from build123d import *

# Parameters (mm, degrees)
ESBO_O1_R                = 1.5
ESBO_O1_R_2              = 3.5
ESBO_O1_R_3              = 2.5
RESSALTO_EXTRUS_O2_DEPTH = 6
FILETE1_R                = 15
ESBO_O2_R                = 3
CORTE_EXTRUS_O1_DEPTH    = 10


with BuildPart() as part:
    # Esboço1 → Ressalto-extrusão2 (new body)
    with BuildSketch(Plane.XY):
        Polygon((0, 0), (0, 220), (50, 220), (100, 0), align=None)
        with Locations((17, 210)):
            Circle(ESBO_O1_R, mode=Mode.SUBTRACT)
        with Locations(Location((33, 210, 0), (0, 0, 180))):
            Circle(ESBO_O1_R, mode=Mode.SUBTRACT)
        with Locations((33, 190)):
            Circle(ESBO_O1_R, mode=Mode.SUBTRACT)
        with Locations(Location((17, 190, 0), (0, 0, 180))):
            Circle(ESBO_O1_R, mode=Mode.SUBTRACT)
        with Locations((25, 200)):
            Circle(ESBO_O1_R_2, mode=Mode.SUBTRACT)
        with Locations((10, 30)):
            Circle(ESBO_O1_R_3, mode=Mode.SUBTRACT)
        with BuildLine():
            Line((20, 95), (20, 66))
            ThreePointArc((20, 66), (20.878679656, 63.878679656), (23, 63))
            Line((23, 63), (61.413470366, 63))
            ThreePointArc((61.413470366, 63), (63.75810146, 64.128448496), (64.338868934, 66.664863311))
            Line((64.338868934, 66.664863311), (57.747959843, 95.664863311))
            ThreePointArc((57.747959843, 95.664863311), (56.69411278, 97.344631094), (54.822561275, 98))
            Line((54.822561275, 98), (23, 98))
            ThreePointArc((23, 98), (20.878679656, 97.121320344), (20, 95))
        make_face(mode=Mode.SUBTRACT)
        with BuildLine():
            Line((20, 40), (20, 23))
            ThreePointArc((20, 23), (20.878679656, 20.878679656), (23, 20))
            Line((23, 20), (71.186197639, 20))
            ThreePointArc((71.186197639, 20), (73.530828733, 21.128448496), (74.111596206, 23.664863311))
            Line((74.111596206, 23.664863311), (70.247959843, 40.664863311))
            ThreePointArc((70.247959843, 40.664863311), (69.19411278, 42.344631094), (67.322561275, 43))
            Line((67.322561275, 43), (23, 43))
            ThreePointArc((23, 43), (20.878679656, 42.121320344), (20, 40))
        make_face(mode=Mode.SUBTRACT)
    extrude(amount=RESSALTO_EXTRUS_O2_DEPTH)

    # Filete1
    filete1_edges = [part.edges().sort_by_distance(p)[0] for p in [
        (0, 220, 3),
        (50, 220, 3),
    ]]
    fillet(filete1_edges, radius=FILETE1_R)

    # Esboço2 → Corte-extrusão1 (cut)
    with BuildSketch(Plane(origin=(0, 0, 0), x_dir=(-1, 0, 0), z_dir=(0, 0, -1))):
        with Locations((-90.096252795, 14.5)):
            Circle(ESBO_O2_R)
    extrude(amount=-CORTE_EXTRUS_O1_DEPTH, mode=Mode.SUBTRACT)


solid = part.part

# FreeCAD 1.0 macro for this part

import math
import FreeCAD as App
import Part
import Sketcher

V = App.Vector


def edges_at(feature, points):
    """Names of the edges that pass closest to the given points."""
    edges = feature.Shape.Edges
    near = lambda p: min(range(len(edges)), key=lambda i: edges[i].distToShape(Part.Vertex(*p))[0])
    return sorted({f"Edge{near(p) + 1}" for p in points})


def add_polygon(sketch, points):
    """Adds a closed chain of lines whose ends are joined by coincident constraints."""
    first, n = sketch.GeometryCount, len(points)
    for a, b in zip(points, points[1:] + points[:1]):
        sketch.addGeometry(Part.LineSegment(App.Vector(*a, 0), App.Vector(*b, 0)), False)
    for i in range(n):
        sketch.addConstraint(Sketcher.Constraint("Coincident", first + i, 2, first + (i + 1) % n, 1))

doc = App.newDocument("Part")
body = doc.addObject("PartDesign::Body", "Body")

# Sketch on XY plane
sketch1 = body.newObject("Sketcher::SketchObject", "Sketch")
sketch1.AttachmentSupport = (doc.getObject("XY_Plane"), [""])
sketch1.MapMode = "FlatFace"
add_polygon(sketch1, [(0, 220), (0, 0), (100, 0), (50, 220)])  # lines 0-3
sketch1.addGeometry(Part.ArcOfCircle(Part.Circle(V(23, 40, 0), V(0, 0, 1), 3), math.radians(90), math.radians(180)), False)  # 4
sketch1.addGeometry(Part.LineSegment(V(23, 43, 0), V(67.3, 43, 0)), False)  # 5
sketch1.addGeometry(Part.ArcOfCircle(Part.Circle(V(67.3, 40, 0), V(0, 0, 1), 3), math.radians(13), math.radians(90)), False)  # 6
sketch1.addGeometry(Part.LineSegment(V(70.2, 40.7, 0), V(74.1, 23.7, 0)), False)  # 7
sketch1.addGeometry(Part.ArcOfCircle(Part.Circle(V(71.2, 23, 0), V(0, 0, 1), 3), math.radians(-90), math.radians(13)), False)  # 8
sketch1.addGeometry(Part.LineSegment(V(71.2, 20, 0), V(23, 20, 0)), False)  # 9
sketch1.addGeometry(Part.ArcOfCircle(Part.Circle(V(23, 23, 0), V(0, 0, 1), 3), math.radians(180), math.radians(270)), False)  # 10
sketch1.addGeometry(Part.LineSegment(V(20, 23, 0), V(20, 40, 0)), False)  # 11
sketch1.addGeometry(Part.ArcOfCircle(Part.Circle(V(23, 95, 0), V(0, 0, 1), 3), math.radians(90), math.radians(180)), False)  # 12
sketch1.addGeometry(Part.LineSegment(V(23, 98, 0), V(54.8, 98, 0)), False)  # 13
sketch1.addGeometry(Part.ArcOfCircle(Part.Circle(V(54.8, 95, 0), V(0, 0, 1), 3), math.radians(13), math.radians(90)), False)  # 14
sketch1.addGeometry(Part.LineSegment(V(57.7, 95.7, 0), V(64.3, 66.7, 0)), False)  # 15
sketch1.addGeometry(Part.ArcOfCircle(Part.Circle(V(61.4, 66, 0), V(0, 0, 1), 3), math.radians(-90), math.radians(13)), False)  # 16
sketch1.addGeometry(Part.LineSegment(V(61.4, 63, 0), V(23, 63, 0)), False)  # 17
sketch1.addGeometry(Part.ArcOfCircle(Part.Circle(V(23, 66, 0), V(0, 0, 1), 3), math.radians(180), math.radians(270)), False)  # 18
sketch1.addGeometry(Part.LineSegment(V(20, 66, 0), V(20, 95, 0)), False)  # 19
sketch1.addGeometry(Part.Circle(V(10, 30, 0), V(0, 0, 1), 2.5), False)  # 20
sketch1.addGeometry(Part.Circle(V(33, 190, 0), V(0, 0, 1), 1.5), False)  # 21
sketch1.addGeometry(Part.Circle(V(33, 210, 0), V(0, 0, 1), 1.5), False)  # 22
sketch1.addGeometry(Part.Circle(V(25, 200, 0), V(0, 0, 1), 3.5), False)  # 23
sketch1.addGeometry(Part.Circle(V(17, 190, 0), V(0, 0, 1), 1.5), False)  # 24
sketch1.addGeometry(Part.Circle(V(17, 210, 0), V(0, 0, 1), 1.5), False)  # 25
sketch1.addConstraint(Sketcher.Constraint("Tangent", 4, 1, 5, 1))
sketch1.addConstraint(Sketcher.Constraint("Tangent", 5, 2, 6, 2))
sketch1.addConstraint(Sketcher.Constraint("Tangent", 6, 1, 7, 1))
sketch1.addConstraint(Sketcher.Constraint("Tangent", 7, 2, 8, 2))
sketch1.addConstraint(Sketcher.Constraint("Tangent", 8, 1, 9, 1))
sketch1.addConstraint(Sketcher.Constraint("Tangent", 9, 2, 10, 2))
sketch1.addConstraint(Sketcher.Constraint("Tangent", 10, 1, 11, 1))
sketch1.addConstraint(Sketcher.Constraint("Tangent", 11, 2, 4, 2))
sketch1.addConstraint(Sketcher.Constraint("Tangent", 12, 1, 13, 1))
sketch1.addConstraint(Sketcher.Constraint("Tangent", 13, 2, 14, 2))
sketch1.addConstraint(Sketcher.Constraint("Tangent", 14, 1, 15, 1))
sketch1.addConstraint(Sketcher.Constraint("Tangent", 15, 2, 16, 2))
sketch1.addConstraint(Sketcher.Constraint("Tangent", 16, 1, 17, 1))
sketch1.addConstraint(Sketcher.Constraint("Tangent", 17, 2, 18, 2))
sketch1.addConstraint(Sketcher.Constraint("Tangent", 18, 1, 19, 1))
sketch1.addConstraint(Sketcher.Constraint("Tangent", 19, 2, 12, 2))
sketch1.addConstraint(Sketcher.Constraint("Vertical", 0))
sketch1.addConstraint(Sketcher.Constraint("Horizontal", 1))
sketch1.addConstraint(Sketcher.Constraint("Horizontal", 3))
sketch1.addConstraint(Sketcher.Constraint("Horizontal", 5))
sketch1.addConstraint(Sketcher.Constraint("Horizontal", 9))
sketch1.addConstraint(Sketcher.Constraint("Vertical", 11))
sketch1.addConstraint(Sketcher.Constraint("Horizontal", 13))
sketch1.addConstraint(Sketcher.Constraint("Horizontal", 17))
sketch1.addConstraint(Sketcher.Constraint("Vertical", 19))
sketch1.addConstraint(Sketcher.Constraint("Coincident", 0, 2, -1, 1))
sketch1.addConstraint(Sketcher.Constraint("Equal", 4, 6))
sketch1.addConstraint(Sketcher.Constraint("Equal", 6, 8))
sketch1.addConstraint(Sketcher.Constraint("Equal", 8, 10))
sketch1.addConstraint(Sketcher.Constraint("Equal", 10, 12))
sketch1.addConstraint(Sketcher.Constraint("Equal", 12, 14))
sketch1.addConstraint(Sketcher.Constraint("Equal", 14, 16))
sketch1.addConstraint(Sketcher.Constraint("Equal", 16, 18))
sketch1.addConstraint(Sketcher.Constraint("Equal", 21, 22))
sketch1.addConstraint(Sketcher.Constraint("Equal", 22, 24))
sketch1.addConstraint(Sketcher.Constraint("Equal", 24, 25))
sketch1.addConstraint(Sketcher.Constraint("Parallel", 2, 7))
sketch1.addConstraint(Sketcher.Constraint("Parallel", 7, 15))
sketch1.addConstraint(Sketcher.Constraint("Horizontal", 21, 3, 24, 3))
sketch1.addConstraint(Sketcher.Constraint("Horizontal", 22, 3, 25, 3))
sketch1.addConstraint(Sketcher.Constraint("Vertical", 10, 3, 12, 3))
sketch1.addConstraint(Sketcher.Constraint("Vertical", 21, 3, 22, 3))
sketch1.addConstraint(Sketcher.Constraint("Vertical", 24, 3, 25, 3))
sketch1.addConstraint(Sketcher.Constraint("Diameter", 20, 5.0))
sketch1.addConstraint(Sketcher.Constraint("Diameter", 21, 3.0))
sketch1.addConstraint(Sketcher.Constraint("Diameter", 23, 7.0))
sketch1.addConstraint(Sketcher.Constraint("Radius", 4, 3.0))
sketch1.addConstraint(Sketcher.Constraint("DistanceX", 1, 1, 1, 2, 100.0))
sketch1.addConstraint(Sketcher.Constraint("DistanceX", 3, 2, 3, 1, 50.0))
sketch1.addConstraint(Sketcher.Constraint("DistanceY", 0, 2, 0, 1, 220.0))
sketch1.addConstraint(Sketcher.Constraint("DistanceY", 11, 1, 11, 2, 17.0))
sketch1.addConstraint(Sketcher.Constraint("DistanceY", 19, 1, 19, 2, 29.0))
sketch1.addConstraint(Sketcher.Constraint("DistanceX", -1, 1, 4, 3, 23.0))
sketch1.addConstraint(Sketcher.Constraint("DistanceY", -1, 1, 4, 3, 40.0))
sketch1.addConstraint(Sketcher.Constraint("DistanceY", -1, 1, 12, 3, 95.0))
sketch1.addConstraint(Sketcher.Constraint("DistanceX", -1, 1, 20, 3, 10.0))
sketch1.addConstraint(Sketcher.Constraint("DistanceY", -1, 1, 20, 3, 30.0))
sketch1.addConstraint(Sketcher.Constraint("DistanceX", -1, 1, 21, 3, 33.0))
sketch1.addConstraint(Sketcher.Constraint("DistanceY", -1, 1, 21, 3, 190.0))
sketch1.addConstraint(Sketcher.Constraint("DistanceY", -1, 1, 22, 3, 210.0))
sketch1.addConstraint(Sketcher.Constraint("DistanceX", -1, 1, 23, 3, 25.0))
sketch1.addConstraint(Sketcher.Constraint("DistanceY", -1, 1, 23, 3, 200.0))
sketch1.addConstraint(Sketcher.Constraint("DistanceX", -1, 1, 24, 3, 17.0))
sketch1.addConstraint(Sketcher.Constraint("DistanceX", 14, 3, 6, 3, 12.5))
sketch1.addConstraint(Sketcher.Constraint("DistanceX", 5, 1, 5, 2, 44.322561))
pad1 = body.newObject("PartDesign::Pad", "Pad")
pad1.Profile = sketch1
pad1.Length = 6
doc.recompute()

fillet = body.newObject("PartDesign::Fillet", "Fillet")
fillet.Base = (pad1, edges_at(pad1, [(0, 220, 3), (50, 220, 3)]))
fillet.Radius = 15

# Sketch on XY plane
sketch2 = body.newObject("Sketcher::SketchObject", "Sketch001")
sketch2.AttachmentSupport = (doc.getObject("XY_Plane"), [""])
sketch2.MapMode = "FlatFace"
sketch2.addGeometry(Part.Circle(V(90.1, 14.5, 0), V(0, 0, 1), 3), False)
sketch2.addConstraint(Sketcher.Constraint("Diameter", 0, 6.0))
sketch2.addConstraint(Sketcher.Constraint("DistanceY", -1, 1, 0, 3, 14.5))
sketch2.addConstraint(Sketcher.Constraint("DistanceX", -1, 1, 0, 3, 90.096253))
pocket1 = body.newObject("PartDesign::Pocket", "Pocket")
pocket1.Profile = sketch2
pocket1.Length = 10
pocket1.Reversed = True

doc.recompute()
